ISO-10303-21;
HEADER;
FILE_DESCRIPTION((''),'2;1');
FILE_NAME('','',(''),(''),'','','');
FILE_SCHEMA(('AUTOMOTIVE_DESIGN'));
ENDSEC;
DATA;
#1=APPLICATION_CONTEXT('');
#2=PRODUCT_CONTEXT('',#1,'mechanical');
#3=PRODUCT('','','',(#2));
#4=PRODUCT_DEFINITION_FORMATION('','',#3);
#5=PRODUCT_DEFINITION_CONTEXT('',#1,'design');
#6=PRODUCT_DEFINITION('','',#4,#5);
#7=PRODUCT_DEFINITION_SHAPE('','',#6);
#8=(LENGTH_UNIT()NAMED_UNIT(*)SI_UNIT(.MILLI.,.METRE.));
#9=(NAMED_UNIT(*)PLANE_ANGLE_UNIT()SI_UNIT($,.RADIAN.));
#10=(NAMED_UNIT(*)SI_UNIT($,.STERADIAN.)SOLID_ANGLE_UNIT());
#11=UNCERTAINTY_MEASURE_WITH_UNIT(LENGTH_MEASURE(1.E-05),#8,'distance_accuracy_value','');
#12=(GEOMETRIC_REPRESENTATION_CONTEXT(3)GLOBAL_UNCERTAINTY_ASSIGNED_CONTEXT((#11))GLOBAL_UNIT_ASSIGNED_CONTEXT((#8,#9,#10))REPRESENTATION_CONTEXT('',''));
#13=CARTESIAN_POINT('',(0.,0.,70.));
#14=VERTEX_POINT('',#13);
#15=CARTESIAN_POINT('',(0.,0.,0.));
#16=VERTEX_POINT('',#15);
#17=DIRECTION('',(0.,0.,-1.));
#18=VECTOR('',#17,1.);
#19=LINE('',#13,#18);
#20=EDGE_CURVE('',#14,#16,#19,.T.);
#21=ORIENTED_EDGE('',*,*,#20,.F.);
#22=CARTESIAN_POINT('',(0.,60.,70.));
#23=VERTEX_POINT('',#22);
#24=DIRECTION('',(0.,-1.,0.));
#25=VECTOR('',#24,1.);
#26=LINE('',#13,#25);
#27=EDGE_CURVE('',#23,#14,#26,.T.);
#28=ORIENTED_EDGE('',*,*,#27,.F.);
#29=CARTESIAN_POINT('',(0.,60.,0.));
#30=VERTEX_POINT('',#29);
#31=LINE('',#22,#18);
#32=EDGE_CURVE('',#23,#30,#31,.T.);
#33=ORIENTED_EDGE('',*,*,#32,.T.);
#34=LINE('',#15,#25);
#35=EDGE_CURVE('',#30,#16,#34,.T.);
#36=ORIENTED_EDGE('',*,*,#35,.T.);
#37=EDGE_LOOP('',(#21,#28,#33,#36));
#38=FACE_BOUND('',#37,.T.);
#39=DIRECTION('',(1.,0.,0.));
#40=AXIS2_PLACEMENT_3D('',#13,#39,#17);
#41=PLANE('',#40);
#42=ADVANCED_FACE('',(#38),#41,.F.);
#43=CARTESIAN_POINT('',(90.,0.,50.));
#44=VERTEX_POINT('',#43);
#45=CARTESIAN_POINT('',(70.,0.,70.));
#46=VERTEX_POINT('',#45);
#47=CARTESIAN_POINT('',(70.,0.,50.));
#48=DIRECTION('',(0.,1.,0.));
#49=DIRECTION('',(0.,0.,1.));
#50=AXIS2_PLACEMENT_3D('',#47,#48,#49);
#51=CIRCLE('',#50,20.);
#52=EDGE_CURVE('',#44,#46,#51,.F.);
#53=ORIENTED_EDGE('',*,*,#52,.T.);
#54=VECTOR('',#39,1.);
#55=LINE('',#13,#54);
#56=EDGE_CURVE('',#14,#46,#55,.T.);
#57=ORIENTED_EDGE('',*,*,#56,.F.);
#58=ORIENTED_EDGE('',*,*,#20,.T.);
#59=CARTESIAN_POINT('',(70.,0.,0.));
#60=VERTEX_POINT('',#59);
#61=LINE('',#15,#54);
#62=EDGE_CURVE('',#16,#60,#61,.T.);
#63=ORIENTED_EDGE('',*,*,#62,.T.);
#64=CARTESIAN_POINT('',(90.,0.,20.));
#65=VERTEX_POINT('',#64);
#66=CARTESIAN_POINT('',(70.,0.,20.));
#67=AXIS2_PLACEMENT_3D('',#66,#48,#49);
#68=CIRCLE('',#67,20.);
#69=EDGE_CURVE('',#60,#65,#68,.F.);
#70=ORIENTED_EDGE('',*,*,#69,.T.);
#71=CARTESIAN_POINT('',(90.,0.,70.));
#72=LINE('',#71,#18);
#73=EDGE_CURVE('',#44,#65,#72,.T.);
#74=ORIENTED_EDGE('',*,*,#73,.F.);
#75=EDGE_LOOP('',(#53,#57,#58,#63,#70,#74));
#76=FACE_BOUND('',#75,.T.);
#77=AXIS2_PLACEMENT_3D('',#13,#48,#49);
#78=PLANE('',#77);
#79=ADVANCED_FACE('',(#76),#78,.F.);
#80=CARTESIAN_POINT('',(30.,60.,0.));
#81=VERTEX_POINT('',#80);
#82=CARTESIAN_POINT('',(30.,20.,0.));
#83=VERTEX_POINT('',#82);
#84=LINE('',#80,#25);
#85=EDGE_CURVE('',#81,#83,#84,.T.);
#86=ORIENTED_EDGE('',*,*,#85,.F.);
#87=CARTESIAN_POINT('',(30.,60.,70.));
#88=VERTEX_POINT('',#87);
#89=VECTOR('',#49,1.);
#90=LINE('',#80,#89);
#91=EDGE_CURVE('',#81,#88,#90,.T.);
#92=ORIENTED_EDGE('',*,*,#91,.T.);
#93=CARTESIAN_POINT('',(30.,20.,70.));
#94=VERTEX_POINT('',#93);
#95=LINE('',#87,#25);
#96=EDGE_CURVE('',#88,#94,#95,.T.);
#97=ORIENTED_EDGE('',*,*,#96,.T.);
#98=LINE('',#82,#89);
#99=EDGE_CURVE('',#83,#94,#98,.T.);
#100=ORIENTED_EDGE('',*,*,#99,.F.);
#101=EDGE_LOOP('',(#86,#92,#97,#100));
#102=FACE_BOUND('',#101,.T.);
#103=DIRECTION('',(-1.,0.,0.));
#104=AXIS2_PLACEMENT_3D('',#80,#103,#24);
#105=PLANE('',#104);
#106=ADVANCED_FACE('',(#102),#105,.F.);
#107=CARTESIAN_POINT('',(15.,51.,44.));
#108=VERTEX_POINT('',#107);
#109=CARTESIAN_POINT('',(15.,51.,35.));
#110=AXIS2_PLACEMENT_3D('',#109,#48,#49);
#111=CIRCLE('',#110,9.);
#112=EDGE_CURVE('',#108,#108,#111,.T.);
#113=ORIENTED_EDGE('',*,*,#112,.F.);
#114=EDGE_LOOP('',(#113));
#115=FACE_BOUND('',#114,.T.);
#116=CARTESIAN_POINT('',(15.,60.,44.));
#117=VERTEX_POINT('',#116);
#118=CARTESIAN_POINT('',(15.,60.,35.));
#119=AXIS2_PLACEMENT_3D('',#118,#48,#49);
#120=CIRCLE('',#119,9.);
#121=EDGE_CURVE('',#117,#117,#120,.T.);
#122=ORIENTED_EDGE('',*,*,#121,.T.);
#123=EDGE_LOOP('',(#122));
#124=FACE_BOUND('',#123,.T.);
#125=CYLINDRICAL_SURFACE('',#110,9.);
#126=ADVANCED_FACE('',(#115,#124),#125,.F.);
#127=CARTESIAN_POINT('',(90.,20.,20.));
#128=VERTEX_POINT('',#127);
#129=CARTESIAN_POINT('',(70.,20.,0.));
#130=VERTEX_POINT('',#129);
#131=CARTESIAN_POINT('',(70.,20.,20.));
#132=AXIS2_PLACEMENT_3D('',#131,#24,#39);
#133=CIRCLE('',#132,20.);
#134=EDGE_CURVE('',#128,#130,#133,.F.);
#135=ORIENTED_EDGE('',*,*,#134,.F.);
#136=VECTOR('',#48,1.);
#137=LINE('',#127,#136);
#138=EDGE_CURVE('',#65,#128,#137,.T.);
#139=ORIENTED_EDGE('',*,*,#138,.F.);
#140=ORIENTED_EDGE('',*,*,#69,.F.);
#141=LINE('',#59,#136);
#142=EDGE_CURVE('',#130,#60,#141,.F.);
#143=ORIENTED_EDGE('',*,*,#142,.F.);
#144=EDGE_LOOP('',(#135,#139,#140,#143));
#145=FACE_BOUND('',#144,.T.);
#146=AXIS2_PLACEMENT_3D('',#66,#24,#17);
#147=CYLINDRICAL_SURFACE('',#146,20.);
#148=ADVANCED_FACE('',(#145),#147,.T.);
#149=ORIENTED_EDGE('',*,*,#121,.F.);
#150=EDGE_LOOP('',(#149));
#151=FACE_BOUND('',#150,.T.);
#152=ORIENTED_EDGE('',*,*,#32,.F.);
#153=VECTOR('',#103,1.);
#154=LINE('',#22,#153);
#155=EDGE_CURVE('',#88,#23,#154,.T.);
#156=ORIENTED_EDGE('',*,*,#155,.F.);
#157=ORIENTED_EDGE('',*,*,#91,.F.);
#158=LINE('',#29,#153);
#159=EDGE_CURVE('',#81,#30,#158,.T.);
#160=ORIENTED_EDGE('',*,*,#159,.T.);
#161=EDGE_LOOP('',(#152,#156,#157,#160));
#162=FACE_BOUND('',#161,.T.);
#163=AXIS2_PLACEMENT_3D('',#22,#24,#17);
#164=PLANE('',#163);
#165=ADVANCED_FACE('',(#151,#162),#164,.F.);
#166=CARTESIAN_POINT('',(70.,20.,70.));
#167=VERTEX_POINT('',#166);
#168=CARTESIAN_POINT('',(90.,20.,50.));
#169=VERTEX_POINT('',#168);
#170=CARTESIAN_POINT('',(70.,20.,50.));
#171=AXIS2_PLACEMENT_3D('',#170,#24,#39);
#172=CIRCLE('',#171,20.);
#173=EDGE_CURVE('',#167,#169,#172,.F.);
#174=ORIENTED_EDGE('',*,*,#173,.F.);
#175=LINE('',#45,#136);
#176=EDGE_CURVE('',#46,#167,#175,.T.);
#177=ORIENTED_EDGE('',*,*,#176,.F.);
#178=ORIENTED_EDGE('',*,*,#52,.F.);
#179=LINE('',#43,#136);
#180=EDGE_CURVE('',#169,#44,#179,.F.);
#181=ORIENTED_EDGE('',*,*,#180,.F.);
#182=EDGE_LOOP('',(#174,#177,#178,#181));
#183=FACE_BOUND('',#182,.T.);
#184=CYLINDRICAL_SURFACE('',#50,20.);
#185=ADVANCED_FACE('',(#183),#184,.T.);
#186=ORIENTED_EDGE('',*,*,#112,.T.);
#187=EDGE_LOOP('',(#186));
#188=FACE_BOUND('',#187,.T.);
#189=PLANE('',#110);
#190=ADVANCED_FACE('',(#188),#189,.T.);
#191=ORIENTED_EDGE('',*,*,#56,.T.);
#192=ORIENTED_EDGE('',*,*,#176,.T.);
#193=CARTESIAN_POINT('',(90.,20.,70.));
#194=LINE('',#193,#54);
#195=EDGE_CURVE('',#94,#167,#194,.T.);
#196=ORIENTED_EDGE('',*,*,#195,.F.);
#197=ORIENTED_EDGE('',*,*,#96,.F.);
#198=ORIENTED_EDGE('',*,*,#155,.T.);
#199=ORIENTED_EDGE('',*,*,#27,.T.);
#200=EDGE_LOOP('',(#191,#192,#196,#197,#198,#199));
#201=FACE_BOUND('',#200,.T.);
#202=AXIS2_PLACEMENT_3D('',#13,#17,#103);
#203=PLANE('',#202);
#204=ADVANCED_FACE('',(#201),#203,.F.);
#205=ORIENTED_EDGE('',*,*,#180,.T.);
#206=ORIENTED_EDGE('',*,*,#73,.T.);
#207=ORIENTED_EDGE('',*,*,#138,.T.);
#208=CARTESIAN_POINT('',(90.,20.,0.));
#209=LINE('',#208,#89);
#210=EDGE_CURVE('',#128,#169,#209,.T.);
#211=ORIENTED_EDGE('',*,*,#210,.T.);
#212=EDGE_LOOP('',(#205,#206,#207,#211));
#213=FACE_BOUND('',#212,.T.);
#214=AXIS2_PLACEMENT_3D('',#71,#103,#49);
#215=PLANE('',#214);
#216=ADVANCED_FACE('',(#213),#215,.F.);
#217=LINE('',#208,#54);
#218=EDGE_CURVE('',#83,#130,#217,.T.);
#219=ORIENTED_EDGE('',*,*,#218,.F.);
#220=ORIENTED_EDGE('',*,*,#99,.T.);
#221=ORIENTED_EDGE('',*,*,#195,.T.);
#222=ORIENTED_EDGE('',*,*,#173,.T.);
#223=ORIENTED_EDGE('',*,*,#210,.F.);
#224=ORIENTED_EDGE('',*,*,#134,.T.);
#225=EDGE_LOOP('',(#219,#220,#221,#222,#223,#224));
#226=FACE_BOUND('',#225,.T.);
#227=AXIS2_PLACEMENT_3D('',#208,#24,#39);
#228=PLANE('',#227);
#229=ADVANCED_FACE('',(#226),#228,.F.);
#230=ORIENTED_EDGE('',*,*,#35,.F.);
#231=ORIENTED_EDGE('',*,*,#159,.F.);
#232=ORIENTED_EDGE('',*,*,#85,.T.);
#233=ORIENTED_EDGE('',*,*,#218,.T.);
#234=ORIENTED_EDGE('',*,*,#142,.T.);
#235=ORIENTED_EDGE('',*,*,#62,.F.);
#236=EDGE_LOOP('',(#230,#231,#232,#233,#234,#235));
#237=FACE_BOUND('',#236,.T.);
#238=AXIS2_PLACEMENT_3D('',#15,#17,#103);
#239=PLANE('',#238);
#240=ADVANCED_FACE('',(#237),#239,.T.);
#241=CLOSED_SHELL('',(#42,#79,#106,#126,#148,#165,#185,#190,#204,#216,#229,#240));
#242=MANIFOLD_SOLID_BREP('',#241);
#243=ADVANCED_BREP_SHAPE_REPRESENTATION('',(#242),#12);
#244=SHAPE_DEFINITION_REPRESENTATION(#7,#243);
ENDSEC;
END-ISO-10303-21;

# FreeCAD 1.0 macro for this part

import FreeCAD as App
import Part
import Sketcher

V = App.Vector
Q = App.Units.Quantity


def edges_at(feature, points):
    """Names of the edges that pass closest to the given points."""
    edges = feature.Shape.Edges
    near = lambda p: min(range(len(edges)), key=lambda i: edges[i].distToShape(Part.Vertex(*p))[0])
    return sorted({f"Edge{near(p) + 1}" for p in points})

doc = App.newDocument("Part")
body = doc.addObject("PartDesign::Body", "Body")

# Sketch on XY plane
sketch1 = body.newObject("Sketcher::SketchObject", "Sketch")
sketch1.AttachmentSupport = (doc.getObject("XY_Plane"), [""])
sketch1.MapMode = "FlatFace"
sketch1.addGeometry([
    Part.LineSegment(V(0, 60, 0), V(0, 0, 0)),
    Part.LineSegment(V(0, 0, 0), V(90, 0, 0)),
    Part.LineSegment(V(90, 0, 0), V(90, 60, 0)),
    Part.LineSegment(V(90, 60, 0), V(0, 60, 0)),
], False)
sketch1.addConstraint([
    Sketcher.Constraint("Coincident", 0, 2, 1, 1),
    Sketcher.Constraint("Coincident", 1, 2, 2, 1),
    Sketcher.Constraint("Coincident", 2, 2, 3, 1),
    Sketcher.Constraint("Coincident", 3, 2, 0, 1),
    Sketcher.Constraint("Vertical", 0),
    Sketcher.Constraint("Horizontal", 1),
    Sketcher.Constraint("Vertical", 2),
    Sketcher.Constraint("Horizontal", 3),
    Sketcher.Constraint("Coincident", 0, 2, -1, 1),
    Sketcher.Constraint("DistanceX", 1, 1, 1, 2, Q("90 mm")),
    Sketcher.Constraint("DistanceY", 0, 2, 0, 1, Q("60 mm")),
])
pad1 = body.newObject("PartDesign::Pad", "Pad")
pad1.Profile = sketch1
pad1.Length = 70

# Sketch on XY plane
sketch2 = body.newObject("Sketcher::SketchObject", "Sketch001")
sketch2.AttachmentSupport = (doc.getObject("XY_Plane"), [""])
sketch2.MapMode = "FlatFace"
sketch2.AttachmentOffset = App.Placement(V(0, 0, 70), App.Rotation())
sketch2.addGeometry([
    Part.LineSegment(V(30, 60, 0), V(30, 20, 0)),
    Part.LineSegment(V(30, 20, 0), V(90, 20, 0)),
    Part.LineSegment(V(90, 20, 0), V(90, 60, 0)),
    Part.LineSegment(V(90, 60, 0), V(30, 60, 0)),
], False)
sketch2.addConstraint([
    Sketcher.Constraint("Coincident", 0, 2, 1, 1),
    Sketcher.Constraint("Coincident", 1, 2, 2, 1),
    Sketcher.Constraint("Coincident", 2, 2, 3, 1),
    Sketcher.Constraint("Coincident", 3, 2, 0, 1),
    Sketcher.Constraint("Vertical", 0),
    Sketcher.Constraint("Horizontal", 1),
    Sketcher.Constraint("Vertical", 2),
    Sketcher.Constraint("Horizontal", 3),
    Sketcher.Constraint("DistanceX", 1, 1, 1, 2, Q("60 mm")),
    Sketcher.Constraint("DistanceY", 0, 2, 0, 1, Q("40 mm")),
    Sketcher.Constraint("DistanceX", -1, 1, 0, 2, Q("30 mm")),
    Sketcher.Constraint("DistanceY", -1, 1, 0, 2, Q("20 mm")),
])
pocket1 = body.newObject("PartDesign::Pocket", "Pocket")
pocket1.Profile = sketch2
pocket1.Length = 70

# Sketch on XZ plane
sketch3 = body.newObject("Sketcher::SketchObject", "Sketch002")
sketch3.AttachmentSupport = (doc.getObject("XZ_Plane"), [""])
sketch3.MapMode = "FlatFace"
sketch3.AttachmentOffset = App.Placement(V(0, 0, -60), App.Rotation())
sketch3.addGeometry(Part.Circle(V(15, 35, 0), V(0, 0, 1), 9), False)
sketch3.addConstraint([
    Sketcher.Constraint("Diameter", 0, Q("18 mm")),
    Sketcher.Constraint("DistanceX", -1, 1, 0, 3, Q("15 mm")),
    Sketcher.Constraint("DistanceY", -1, 1, 0, 3, Q("35 mm")),
])
pocket2 = body.newObject("PartDesign::Pocket", "Pocket001")
pocket2.Profile = sketch3
pocket2.Length = 9
pocket2.Reversed = True
doc.recompute()

fillet = body.newObject("PartDesign::Fillet", "Fillet")
fillet.Base = (pocket2, edges_at(pocket2, [(90, 10, 70), (90, 10, 0)]))
fillet.Radius = 20

doc.recompute()
